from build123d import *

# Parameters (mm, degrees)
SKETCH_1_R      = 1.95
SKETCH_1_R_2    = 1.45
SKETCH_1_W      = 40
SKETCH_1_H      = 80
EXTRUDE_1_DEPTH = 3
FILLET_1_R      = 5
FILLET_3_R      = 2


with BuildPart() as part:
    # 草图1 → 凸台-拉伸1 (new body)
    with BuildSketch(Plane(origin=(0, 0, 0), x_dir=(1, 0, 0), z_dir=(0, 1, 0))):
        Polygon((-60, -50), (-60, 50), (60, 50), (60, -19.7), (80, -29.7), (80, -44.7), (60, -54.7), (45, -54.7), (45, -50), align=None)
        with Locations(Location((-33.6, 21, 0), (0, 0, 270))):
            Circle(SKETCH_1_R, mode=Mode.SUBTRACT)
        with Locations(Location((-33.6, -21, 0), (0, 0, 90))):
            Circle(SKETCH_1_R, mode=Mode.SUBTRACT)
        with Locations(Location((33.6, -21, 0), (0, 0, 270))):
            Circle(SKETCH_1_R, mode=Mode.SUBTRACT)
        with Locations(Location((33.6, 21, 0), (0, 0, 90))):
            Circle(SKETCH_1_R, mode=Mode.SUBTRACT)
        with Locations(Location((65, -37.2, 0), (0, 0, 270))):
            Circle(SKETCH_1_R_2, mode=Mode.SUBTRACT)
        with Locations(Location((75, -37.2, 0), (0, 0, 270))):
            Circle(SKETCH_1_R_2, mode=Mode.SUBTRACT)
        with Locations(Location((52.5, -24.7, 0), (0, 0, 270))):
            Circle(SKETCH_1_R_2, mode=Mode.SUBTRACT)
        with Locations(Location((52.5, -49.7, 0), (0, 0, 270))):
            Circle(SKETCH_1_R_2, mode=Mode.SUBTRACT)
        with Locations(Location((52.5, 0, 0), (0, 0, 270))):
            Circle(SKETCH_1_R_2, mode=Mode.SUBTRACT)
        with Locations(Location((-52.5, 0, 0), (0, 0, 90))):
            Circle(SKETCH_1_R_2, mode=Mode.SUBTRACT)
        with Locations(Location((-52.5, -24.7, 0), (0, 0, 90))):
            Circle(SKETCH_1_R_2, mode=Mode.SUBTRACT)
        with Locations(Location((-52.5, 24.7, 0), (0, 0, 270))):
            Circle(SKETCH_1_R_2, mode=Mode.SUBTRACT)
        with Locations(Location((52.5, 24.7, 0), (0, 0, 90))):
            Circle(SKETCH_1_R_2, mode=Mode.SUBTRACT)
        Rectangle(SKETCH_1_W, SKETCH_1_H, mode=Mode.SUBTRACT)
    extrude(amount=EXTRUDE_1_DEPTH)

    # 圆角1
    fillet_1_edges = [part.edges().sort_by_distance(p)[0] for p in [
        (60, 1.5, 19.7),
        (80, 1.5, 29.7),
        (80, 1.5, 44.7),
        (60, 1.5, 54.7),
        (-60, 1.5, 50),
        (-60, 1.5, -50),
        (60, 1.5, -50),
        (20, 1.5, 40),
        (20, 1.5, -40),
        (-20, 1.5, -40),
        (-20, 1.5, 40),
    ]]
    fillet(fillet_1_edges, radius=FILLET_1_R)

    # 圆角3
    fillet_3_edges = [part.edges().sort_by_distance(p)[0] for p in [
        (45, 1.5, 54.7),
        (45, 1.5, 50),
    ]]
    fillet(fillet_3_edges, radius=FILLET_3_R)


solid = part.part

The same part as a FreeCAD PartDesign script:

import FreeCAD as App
import Part
import Sketcher


def edges_at(feature, points):
    """Names of the edges that pass closest to the given points."""
    edges = feature.Shape.Edges
    near = lambda p: min(range(len(edges)), key=lambda i: edges[i].distToShape(Part.Vertex(*p))[0])
    return sorted({f"Edge{near(p) + 1}" for p in points})

doc = App.newDocument("Part")
body = doc.addObject("PartDesign::Body", "Body")

# Sketch on XZ plane
sketch1 = doc.addObject("Sketcher::SketchObject", "Sketch")
body.addObject(sketch1)
sketch1.AttachmentSupport = (doc.XZ_Plane, [""])
sketch1.MapMode = "FlatFace"
sketch1.addGeometry(Part.LineSegment(App.Vector(-60, -50, 0), App.Vector(-60, 50, 0)), False)
sketch1.addGeometry(Part.LineSegment(App.Vector(-60, 50, 0), App.Vector(45, 50, 0)), False)
sketch1.addGeometry(Part.LineSegment(App.Vector(45, 50, 0), App.Vector(45, 54.7, 0)), False)
sketch1.addGeometry(Part.LineSegment(App.Vector(45, 54.7, 0), App.Vector(60, 54.7, 0)), False)
sketch1.addGeometry(Part.LineSegment(App.Vector(60, 54.7, 0), App.Vector(80, 44.7, 0)), False)
sketch1.addGeometry(Part.LineSegment(App.Vector(80, 44.7, 0), App.Vector(80, 29.7, 0)), False)
sketch1.addGeometry(Part.LineSegment(App.Vector(80, 29.7, 0), App.Vector(60, 19.7, 0)), False)
sketch1.addGeometry(Part.LineSegment(App.Vector(60, 19.7, 0), App.Vector(60, -50, 0)), False)
sketch1.addGeometry(Part.LineSegment(App.Vector(60, -50, 0), App.Vector(-60, -50, 0)), False)
sketch1.addGeometry(Part.Circle(App.Vector(52.5, 49.7, 0), App.Vector(0, 0, 1), 1.4), False)
sketch1.addGeometry(Part.Circle(App.Vector(75, 37.2, 0), App.Vector(0, 0, 1), 1.4), False)
sketch1.addGeometry(Part.Circle(App.Vector(65, 37.2, 0), App.Vector(0, 0, 1), 1.4), False)
sketch1.addGeometry(Part.Circle(App.Vector(52.5, 24.7, 0), App.Vector(0, 0, 1), 1.4), False)
sketch1.addGeometry(Part.Circle(App.Vector(33.6, 21, 0), App.Vector(0, 0, 1), 1.9), False)
sketch1.addGeometry(Part.Circle(App.Vector(-33.6, 21, 0), App.Vector(0, 0, 1), 1.9), False)
sketch1.addGeometry(Part.Circle(App.Vector(-52.5, 24.7, 0), App.Vector(0, 0, 1), 1.4), False)
sketch1.addGeometry(Part.Circle(App.Vector(52.5, 0, 0), App.Vector(0, 0, 1), 1.4), False)
sketch1.addGeometry(Part.Circle(App.Vector(52.5, -24.7, 0), App.Vector(0, 0, 1), 1.4), False)
sketch1.addGeometry(Part.Circle(App.Vector(33.6, -21, 0), App.Vector(0, 0, 1), 1.9), False)
sketch1.addGeometry(Part.LineSegment(App.Vector(-20, 40, 0), App.Vector(-20, -40, 0)), False)
sketch1.addGeometry(Part.LineSegment(App.Vector(-20, -40, 0), App.Vector(20, -40, 0)), False)
sketch1.addGeometry(Part.LineSegment(App.Vector(20, -40, 0), App.Vector(20, 40, 0)), False)
sketch1.addGeometry(Part.LineSegment(App.Vector(20, 40, 0), App.Vector(-20, 40, 0)), False)
sketch1.addGeometry(Part.Circle(App.Vector(-52.5, 0, 0), App.Vector(0, 0, 1), 1.4), False)
sketch1.addGeometry(Part.Circle(App.Vector(-33.6, -21, 0), App.Vector(0, 0, 1), 1.9), False)
sketch1.addGeometry(Part.Circle(App.Vector(-52.5, -24.7, 0), App.Vector(0, 0, 1), 1.4), False)
sketch1.addConstraint(Sketcher.Constraint("Coincident", 0, 2, 1, 1))
sketch1.addConstraint(Sketcher.Constraint("Coincident", 1, 2, 2, 1))
sketch1.addConstraint(Sketcher.Constraint("Coincident", 2, 2, 3, 1))
sketch1.addConstraint(Sketcher.Constraint("Coincident", 3, 2, 4, 1))
sketch1.addConstraint(Sketcher.Constraint("Coincident", 4, 2, 5, 1))
sketch1.addConstraint(Sketcher.Constraint("Coincident", 5, 2, 6, 1))
sketch1.addConstraint(Sketcher.Constraint("Coincident", 6, 2, 7, 1))
sketch1.addConstraint(Sketcher.Constraint("Coincident", 7, 2, 8, 1))
sketch1.addConstraint(Sketcher.Constraint("Coincident", 8, 2, 0, 1))
sketch1.addConstraint(Sketcher.Constraint("Coincident", 19, 2, 20, 1))
sketch1.addConstraint(Sketcher.Constraint("Coincident", 20, 2, 21, 1))
sketch1.addConstraint(Sketcher.Constraint("Coincident", 21, 2, 22, 1))
sketch1.addConstraint(Sketcher.Constraint("Coincident", 22, 2, 19, 1))
sketch1.addConstraint(Sketcher.Constraint("Vertical", 0))
sketch1.addConstraint(Sketcher.Constraint("Horizontal", 1))
sketch1.addConstraint(Sketcher.Constraint("Vertical", 2))
sketch1.addConstraint(Sketcher.Constraint("Horizontal", 3))
sketch1.addConstraint(Sketcher.Constraint("Vertical", 5))
sketch1.addConstraint(Sketcher.Constraint("Vertical", 7))
sketch1.addConstraint(Sketcher.Constraint("Horizontal", 8))
sketch1.addConstraint(Sketcher.Constraint("Vertical", 19))
sketch1.addConstraint(Sketcher.Constraint("Horizontal", 20))
sketch1.addConstraint(Sketcher.Constraint("Vertical", 21))
sketch1.addConstraint(Sketcher.Constraint("Horizontal", 22))
sketch1.addConstraint(Sketcher.Constraint("Equal", 9, 10))
sketch1.addConstraint(Sketcher.Constraint("Equal", 10, 11))
sketch1.addConstraint(Sketcher.Constraint("Equal", 11, 12))
sketch1.addConstraint(Sketcher.Constraint("Equal", 13, 14))
sketch1.addConstraint(Sketcher.Constraint("Equal", 12, 15))
sketch1.addConstraint(Sketcher.Constraint("Equal", 15, 16))
sketch1.addConstraint(Sketcher.Constraint("Equal", 16, 17))
sketch1.addConstraint(Sketcher.Constraint("Equal", 14, 18))
sketch1.addConstraint(Sketcher.Constraint("Equal", 17, 23))
sketch1.addConstraint(Sketcher.Constraint("Equal", 18, 24))
sketch1.addConstraint(Sketcher.Constraint("Equal", 23, 25))
sketch1.addConstraint(Sketcher.Constraint("Symmetric", 15, 3, 17, 3, -1, 1))
sketch1.addConstraint(Sketcher.Constraint("Symmetric", 14, 3, 18, 3, -1, 1))
sketch1.addConstraint(Sketcher.Constraint("Symmetric", 16, 3, 23, 3, -1, 1))
sketch1.addConstraint(Sketcher.Constraint("Symmetric", 13, 3, 24, 3, -1, 1))
sketch1.addConstraint(Sketcher.Constraint("Symmetric", 12, 3, 25, 3, -1, 1))
sketch1.addConstraint(Sketcher.Constraint("Symmetric", 0, 2, 7, 2, -1, 1))
sketch1.addConstraint(Sketcher.Constraint("Symmetric", 19, 2, 21, 2, -1, 1))
sketch1.addConstraint(Sketcher.Constraint("Symmetric", 13, 3, 14, 3, -2))
sketch1.addConstraint(Sketcher.Constraint("Symmetric", 12, 3, 15, 3, -2))
sketch1.addConstraint(Sketcher.Constraint("PointOnObject", 16, 3, -1))
sketch1.addConstraint(Sketcher.Constraint("Horizontal", 10, 3, 11, 3))
sketch1.addConstraint(Sketcher.Constraint("Vertical", 9, 3, 12, 3))
sketch1.addConstraint(Sketcher.Constraint("Vertical", 12, 3, 16, 3))
sketch1.addConstraint(Sketcher.Constraint("Vertical", 3, 2, 6, 2))
sketch1.addConstraint(Sketcher.Constraint("Equal", 3, 5))
sketch1.addConstraint(Sketcher.Constraint("Equal", 4, 6))
sketch1.addConstraint(Sketcher.Constraint("Diameter", 9, 2.9))
sketch1.addConstraint(Sketcher.Constraint("Diameter", 13, 3.9))
sketch1.addConstraint(Sketcher.Constraint("DistanceX", 1, 1, 1, 2, 105.0))
sketch1.addConstraint(Sketcher.Constraint("DistanceX", 3, 1, 3, 2, 15.0))
sketch1.addConstraint(Sketcher.Constraint("DistanceX", 20, 1, 20, 2, 40.0))
sketch1.addConstraint(Sketcher.Constraint("DistanceY", 0, 1, 0, 2, 100.0))
sketch1.addConstraint(Sketcher.Constraint("DistanceY", 19, 2, 19, 1, 80.0))
sketch1.addConstraint(Sketcher.Constraint("DistanceY", 2, 1, 2, 2, 4.7))
sketch1.addConstraint(Sketcher.Constraint("DistanceY", 7, 2, 7, 1, 69.7))
sketch1.addConstraint(Sketcher.Constraint("DistanceX", -1, 1, 10, 3, 75.0))
sketch1.addConstraint(Sketcher.Constraint("DistanceX", -1, 1, 11, 3, 65.0))
sketch1.addConstraint(Sketcher.Constraint("DistanceY", -1, 1, 13, 3, 21.0))
sketch1.addConstraint(Sketcher.Constraint("DistanceX", -1, 1, 4, 2, 80.0))
sketch1.addConstraint(Sketcher.Constraint("DistanceY", 12, 3, 9, 3, 25.0))
sketch1.addConstraint(Sketcher.Constraint("DistanceX", 15, 3, 12, 3, 105.0))
sketch1.addConstraint(Sketcher.Constraint("DistanceY", 9, 3, 2, 2, 5.0))
sketch1.addConstraint(Sketcher.Constraint("DistanceY", -1, 1, 10, 3, 37.2))
sketch1.addConstraint(Sketcher.Constraint("DistanceX", -1, 1, 13, 3, 33.6))
pad1 = doc.addObject("PartDesign::Pad", "Pad")
body.addObject(pad1)
pad1.Profile = sketch1
pad1.Length = 3
pad1.Reversed = True
doc.recompute()

fillet = doc.addObject("PartDesign::Fillet", "Fillet")
body.addObject(fillet)
fillet.Base = (pad1, edges_at(pad1, [
    (60, 1.5, 19.7),
    (80, 1.5, 29.7),
    (80, 1.5, 44.7),
    (60, 1.5, 54.7),
    (-60, 1.5, 50),
    (-60, 1.5, -50),
    (60, 1.5, -50),
    (20, 1.5, 40),
    (20, 1.5, -40),
    (-20, 1.5, -40),
    (-20, 1.5, 40),
]))
fillet.Radius = 5
doc.recompute()

fillet2 = doc.addObject("PartDesign::Fillet", "Fillet001")
body.addObject(fillet2)
fillet2.Base = (fillet, edges_at(fillet, [(45, 1.5, 54.7), (45, 1.5, 50)]))
fillet2.Radius = 2

doc.recompute()
